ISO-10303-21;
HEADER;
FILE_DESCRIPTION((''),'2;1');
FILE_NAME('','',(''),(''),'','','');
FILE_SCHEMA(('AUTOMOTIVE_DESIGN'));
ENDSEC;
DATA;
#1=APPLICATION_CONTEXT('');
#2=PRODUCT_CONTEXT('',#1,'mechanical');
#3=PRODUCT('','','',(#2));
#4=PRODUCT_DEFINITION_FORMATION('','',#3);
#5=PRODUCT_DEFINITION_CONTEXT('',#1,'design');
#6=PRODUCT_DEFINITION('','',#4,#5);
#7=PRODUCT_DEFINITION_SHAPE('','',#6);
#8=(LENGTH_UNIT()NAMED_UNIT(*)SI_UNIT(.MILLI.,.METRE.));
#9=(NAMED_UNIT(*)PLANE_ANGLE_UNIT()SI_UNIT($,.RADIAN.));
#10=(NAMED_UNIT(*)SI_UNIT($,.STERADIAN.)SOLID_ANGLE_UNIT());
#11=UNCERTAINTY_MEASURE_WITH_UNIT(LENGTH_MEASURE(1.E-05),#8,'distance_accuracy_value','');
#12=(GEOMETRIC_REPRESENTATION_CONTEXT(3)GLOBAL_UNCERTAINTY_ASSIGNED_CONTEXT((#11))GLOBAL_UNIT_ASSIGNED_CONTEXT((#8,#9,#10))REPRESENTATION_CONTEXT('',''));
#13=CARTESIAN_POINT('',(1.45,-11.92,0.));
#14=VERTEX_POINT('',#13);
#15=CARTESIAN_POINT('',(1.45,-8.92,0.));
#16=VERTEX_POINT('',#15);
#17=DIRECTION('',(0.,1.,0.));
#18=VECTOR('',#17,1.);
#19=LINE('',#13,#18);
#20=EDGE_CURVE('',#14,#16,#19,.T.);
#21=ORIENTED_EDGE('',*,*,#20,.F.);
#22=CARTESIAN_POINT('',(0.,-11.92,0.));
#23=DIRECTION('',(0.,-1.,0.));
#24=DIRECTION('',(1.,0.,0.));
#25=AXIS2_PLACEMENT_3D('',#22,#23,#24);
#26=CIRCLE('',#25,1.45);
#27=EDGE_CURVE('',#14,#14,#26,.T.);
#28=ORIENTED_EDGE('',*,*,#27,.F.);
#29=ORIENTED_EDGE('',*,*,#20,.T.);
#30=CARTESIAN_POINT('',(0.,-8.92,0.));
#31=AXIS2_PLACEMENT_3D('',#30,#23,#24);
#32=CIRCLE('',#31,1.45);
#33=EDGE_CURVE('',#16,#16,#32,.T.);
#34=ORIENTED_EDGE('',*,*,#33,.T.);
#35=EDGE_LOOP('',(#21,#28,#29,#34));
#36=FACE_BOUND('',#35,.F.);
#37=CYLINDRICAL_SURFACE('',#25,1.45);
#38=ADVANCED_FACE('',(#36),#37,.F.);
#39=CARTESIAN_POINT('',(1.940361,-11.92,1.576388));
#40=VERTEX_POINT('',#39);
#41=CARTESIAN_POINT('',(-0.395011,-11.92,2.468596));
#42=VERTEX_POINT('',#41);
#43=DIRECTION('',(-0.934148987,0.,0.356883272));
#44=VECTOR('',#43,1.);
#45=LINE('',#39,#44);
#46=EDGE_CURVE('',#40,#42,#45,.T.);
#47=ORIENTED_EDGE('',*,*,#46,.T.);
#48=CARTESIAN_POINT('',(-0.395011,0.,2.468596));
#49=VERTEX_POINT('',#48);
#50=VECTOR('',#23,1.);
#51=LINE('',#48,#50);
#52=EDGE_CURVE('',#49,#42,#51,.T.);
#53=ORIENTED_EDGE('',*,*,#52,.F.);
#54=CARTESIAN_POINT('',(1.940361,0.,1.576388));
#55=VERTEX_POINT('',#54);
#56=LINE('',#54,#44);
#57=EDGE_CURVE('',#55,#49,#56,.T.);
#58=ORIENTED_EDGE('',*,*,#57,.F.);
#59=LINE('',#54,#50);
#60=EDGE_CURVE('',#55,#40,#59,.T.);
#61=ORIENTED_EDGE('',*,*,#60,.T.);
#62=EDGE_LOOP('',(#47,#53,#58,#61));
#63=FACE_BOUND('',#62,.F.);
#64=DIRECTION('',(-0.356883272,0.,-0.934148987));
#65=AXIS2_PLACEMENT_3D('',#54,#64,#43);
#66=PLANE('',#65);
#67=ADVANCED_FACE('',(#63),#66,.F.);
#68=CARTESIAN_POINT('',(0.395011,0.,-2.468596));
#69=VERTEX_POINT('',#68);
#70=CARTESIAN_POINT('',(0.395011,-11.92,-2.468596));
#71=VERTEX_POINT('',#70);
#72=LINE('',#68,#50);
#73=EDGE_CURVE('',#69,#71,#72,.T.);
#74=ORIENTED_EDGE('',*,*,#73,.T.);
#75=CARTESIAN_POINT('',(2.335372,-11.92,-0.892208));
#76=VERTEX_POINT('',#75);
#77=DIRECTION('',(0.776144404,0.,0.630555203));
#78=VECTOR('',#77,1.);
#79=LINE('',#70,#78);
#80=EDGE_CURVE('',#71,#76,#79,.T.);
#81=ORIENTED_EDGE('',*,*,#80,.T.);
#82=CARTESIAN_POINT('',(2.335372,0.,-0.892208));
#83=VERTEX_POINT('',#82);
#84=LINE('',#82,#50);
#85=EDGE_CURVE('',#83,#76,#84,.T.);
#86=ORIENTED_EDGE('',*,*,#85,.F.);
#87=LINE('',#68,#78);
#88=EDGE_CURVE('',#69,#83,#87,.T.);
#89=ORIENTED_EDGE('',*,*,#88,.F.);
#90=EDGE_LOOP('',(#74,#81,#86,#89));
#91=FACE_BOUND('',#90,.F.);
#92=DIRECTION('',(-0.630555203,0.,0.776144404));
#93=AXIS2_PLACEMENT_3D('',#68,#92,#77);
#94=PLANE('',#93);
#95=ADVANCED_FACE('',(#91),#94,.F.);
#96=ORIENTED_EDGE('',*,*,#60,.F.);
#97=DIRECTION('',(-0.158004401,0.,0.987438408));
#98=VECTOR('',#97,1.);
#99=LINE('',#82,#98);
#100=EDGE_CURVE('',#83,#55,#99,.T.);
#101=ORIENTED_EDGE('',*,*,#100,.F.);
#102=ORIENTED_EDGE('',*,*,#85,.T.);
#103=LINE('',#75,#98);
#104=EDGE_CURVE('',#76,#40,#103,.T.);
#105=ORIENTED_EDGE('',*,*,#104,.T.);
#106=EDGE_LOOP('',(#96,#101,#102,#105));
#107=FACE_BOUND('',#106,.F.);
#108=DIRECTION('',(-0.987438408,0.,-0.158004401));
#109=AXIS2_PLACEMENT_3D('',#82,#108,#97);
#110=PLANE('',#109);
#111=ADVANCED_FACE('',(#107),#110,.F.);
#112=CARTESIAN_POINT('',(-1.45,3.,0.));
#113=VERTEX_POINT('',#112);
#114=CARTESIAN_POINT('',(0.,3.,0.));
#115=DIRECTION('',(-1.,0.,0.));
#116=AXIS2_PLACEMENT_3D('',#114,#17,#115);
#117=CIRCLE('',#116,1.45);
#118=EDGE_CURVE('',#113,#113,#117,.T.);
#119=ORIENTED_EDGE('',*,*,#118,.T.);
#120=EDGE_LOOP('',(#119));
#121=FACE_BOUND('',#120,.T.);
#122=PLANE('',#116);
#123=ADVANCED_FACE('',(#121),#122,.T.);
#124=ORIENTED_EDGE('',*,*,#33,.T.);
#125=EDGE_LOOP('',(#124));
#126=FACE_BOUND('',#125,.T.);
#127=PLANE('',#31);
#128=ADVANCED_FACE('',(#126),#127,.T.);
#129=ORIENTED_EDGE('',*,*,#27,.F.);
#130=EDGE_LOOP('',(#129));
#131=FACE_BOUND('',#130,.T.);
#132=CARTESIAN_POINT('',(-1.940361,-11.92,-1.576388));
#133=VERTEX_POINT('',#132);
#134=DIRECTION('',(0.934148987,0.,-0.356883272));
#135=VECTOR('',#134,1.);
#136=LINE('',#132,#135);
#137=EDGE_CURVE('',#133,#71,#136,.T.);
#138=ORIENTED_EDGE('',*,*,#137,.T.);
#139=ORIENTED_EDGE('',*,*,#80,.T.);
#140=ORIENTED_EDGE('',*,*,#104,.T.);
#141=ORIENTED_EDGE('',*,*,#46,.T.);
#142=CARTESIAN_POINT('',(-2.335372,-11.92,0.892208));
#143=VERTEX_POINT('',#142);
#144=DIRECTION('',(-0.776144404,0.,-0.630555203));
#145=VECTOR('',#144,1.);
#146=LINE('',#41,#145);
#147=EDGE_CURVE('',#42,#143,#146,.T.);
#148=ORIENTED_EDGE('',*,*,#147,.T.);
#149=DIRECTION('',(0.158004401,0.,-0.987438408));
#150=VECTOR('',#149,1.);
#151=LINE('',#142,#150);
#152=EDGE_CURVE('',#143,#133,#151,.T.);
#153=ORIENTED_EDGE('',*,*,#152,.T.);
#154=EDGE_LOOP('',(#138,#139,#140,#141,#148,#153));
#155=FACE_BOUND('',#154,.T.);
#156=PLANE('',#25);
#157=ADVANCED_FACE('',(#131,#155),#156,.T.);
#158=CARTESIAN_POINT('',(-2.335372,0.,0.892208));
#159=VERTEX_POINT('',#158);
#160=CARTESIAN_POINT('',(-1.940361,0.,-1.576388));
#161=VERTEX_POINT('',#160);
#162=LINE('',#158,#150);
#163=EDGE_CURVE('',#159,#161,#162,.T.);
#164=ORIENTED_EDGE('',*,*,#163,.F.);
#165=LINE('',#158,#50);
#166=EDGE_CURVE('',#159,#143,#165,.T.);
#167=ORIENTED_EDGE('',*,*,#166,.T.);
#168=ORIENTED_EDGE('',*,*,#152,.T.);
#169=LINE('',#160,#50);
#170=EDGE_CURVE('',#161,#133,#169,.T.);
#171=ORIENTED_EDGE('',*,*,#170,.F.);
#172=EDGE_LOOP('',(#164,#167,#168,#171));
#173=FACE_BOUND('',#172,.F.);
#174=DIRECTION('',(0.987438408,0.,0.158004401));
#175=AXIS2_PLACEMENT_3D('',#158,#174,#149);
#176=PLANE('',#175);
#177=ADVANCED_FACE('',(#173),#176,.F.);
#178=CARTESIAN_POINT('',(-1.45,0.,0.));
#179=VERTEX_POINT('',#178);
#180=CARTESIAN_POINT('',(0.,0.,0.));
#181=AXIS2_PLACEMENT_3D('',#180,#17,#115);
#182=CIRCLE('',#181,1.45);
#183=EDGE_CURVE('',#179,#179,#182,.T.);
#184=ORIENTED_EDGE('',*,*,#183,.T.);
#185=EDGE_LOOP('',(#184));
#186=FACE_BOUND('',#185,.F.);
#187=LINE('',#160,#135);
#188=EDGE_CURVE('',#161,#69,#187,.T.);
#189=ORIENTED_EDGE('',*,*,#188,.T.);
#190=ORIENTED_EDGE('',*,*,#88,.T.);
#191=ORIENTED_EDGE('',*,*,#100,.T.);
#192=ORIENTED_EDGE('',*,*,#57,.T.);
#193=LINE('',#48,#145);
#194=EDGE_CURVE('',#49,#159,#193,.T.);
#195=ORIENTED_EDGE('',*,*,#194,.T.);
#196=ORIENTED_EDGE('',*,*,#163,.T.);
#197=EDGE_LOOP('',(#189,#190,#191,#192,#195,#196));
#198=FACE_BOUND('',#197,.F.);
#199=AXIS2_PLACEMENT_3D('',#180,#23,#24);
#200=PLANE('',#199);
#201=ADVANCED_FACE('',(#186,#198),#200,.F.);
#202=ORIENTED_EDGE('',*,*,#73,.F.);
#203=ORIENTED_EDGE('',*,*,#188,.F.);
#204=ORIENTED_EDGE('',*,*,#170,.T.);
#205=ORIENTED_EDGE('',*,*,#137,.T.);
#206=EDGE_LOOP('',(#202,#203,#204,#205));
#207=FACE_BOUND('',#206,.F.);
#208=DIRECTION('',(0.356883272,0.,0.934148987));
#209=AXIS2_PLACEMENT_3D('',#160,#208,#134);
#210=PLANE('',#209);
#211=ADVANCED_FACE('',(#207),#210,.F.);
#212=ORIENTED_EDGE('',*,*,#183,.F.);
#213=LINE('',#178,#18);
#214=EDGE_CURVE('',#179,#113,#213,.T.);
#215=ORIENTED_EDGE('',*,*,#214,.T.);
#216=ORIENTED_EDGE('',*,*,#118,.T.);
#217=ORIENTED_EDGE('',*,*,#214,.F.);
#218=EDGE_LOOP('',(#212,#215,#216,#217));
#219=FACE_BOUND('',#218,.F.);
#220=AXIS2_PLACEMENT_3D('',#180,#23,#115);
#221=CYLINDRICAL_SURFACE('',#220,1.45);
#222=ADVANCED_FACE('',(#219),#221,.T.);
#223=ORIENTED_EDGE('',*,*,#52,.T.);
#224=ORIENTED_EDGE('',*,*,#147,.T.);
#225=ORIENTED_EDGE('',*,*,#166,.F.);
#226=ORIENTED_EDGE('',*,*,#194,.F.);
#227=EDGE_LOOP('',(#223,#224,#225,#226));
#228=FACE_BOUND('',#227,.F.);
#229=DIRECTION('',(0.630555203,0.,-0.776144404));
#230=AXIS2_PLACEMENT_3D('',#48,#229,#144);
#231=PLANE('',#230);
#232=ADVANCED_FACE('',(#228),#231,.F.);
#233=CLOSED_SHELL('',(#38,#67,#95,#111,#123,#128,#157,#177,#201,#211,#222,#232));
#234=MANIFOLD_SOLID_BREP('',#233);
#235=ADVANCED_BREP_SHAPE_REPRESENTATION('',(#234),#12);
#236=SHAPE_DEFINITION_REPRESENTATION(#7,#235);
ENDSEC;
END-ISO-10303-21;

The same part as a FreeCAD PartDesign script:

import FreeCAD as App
import Part
import Sketcher
from FreeCAD import Vector
Q = App.Units.Quantity


def add_polygon(sketch, points):
    """Adds a closed chain of lines whose ends are joined by coincident constraints."""
    first, n = sketch.GeometryCount, len(points)
    for a, b in zip(points, points[1:] + points[:1]):
        sketch.addGeometry(Part.LineSegment(App.Vector(*a, 0), App.Vector(*b, 0)), False)
    for i in range(n):
        sketch.addConstraint(Sketcher.Constraint("Coincident", first + i, 2, first + (i + 1) % n, 1))

doc = App.newDocument("Part")
body = doc.addObject("PartDesign::Body", "Body")

# Sketch on XZ plane
sketch1 = doc.addObject("Sketcher::SketchObject", "Sketch")
body.addObject(sketch1)
sketch1.AttachmentSupport = (doc.XZ_Plane, [""])
sketch1.MapMode = "FlatFace"
add_polygon(sketch1, [(2.3, -0.9), (1.9, 1.6), (-0.4, 2.5), (-2.3, 0.9), (-1.9, -1.6), (0.4, -2.5)])  # lines 0-5
sketch1.addConstraint([
    Sketcher.Constraint("Symmetric", 0, 2, 3, 2, -1, 1),
    Sketcher.Constraint("Symmetric", 1, 2, 4, 2, -1, 1),
    Sketcher.Constraint("Symmetric", 2, 2, 5, 2, -1, 1),
    Sketcher.Constraint("Equal", 0, 1),
    Sketcher.Constraint("Equal", 1, 2),
    Sketcher.Constraint("Distance", 0, Q("2.5 mm")),
    Sketcher.Constraint("DistanceX", -1, 1, 0, 2, Q("1.940361 mm")),
    Sketcher.Constraint("DistanceX", 1, 2, -1, 1, Q("0.395011 mm")),
    Sketcher.Constraint("DistanceX", 2, 2, -1, 1, Q("2.335372 mm")),
])
pad1 = doc.addObject("PartDesign::Pad", "Pad")
body.addObject(pad1)
pad1.Profile = sketch1
pad1.Length = 11.92

# Sketch on XZ plane
sketch2 = doc.addObject("Sketcher::SketchObject", "Sketch001")
body.addObject(sketch2)
sketch2.AttachmentSupport = (doc.XZ_Plane, [""])
sketch2.MapMode = "FlatFace"
sketch2.addGeometry(Part.Circle(Vector(0, 0, 0), Vector(0, 0, 1), 1.4), False)
sketch2.addConstraint([
    Sketcher.Constraint("Coincident", 0, 3, -1, 1),
    Sketcher.Constraint("Diameter", 0, Q("2.9 mm")),
])
pad2 = doc.addObject("PartDesign::Pad", "Pad001")
body.addObject(pad2)
pad2.Profile = sketch2
pad2.Length = 3
pad2.Reversed = True

# Sketch on XZ plane
sketch3 = doc.addObject("Sketcher::SketchObject", "Sketch002")
body.addObject(sketch3)
sketch3.AttachmentSupport = (doc.XZ_Plane, [""])
sketch3.MapMode = "FlatFace"
sketch3.AttachmentOffset = App.Placement(Vector(0, 0, 11.92), App.Rotation())
sketch3.addGeometry(Part.Circle(Vector(0, 0, 0), Vector(0, 0, 1), 1.4), False)
sketch3.addConstraint([
    Sketcher.Constraint("Coincident", 0, 3, -1, 1),
    Sketcher.Constraint("Diameter", 0, Q("2.9 mm")),
])
pocket1 = doc.addObject("PartDesign::Pocket", "Pocket")
body.addObject(pocket1)
pocket1.Profile = sketch3
pocket1.Length = 3

doc.recompute()
